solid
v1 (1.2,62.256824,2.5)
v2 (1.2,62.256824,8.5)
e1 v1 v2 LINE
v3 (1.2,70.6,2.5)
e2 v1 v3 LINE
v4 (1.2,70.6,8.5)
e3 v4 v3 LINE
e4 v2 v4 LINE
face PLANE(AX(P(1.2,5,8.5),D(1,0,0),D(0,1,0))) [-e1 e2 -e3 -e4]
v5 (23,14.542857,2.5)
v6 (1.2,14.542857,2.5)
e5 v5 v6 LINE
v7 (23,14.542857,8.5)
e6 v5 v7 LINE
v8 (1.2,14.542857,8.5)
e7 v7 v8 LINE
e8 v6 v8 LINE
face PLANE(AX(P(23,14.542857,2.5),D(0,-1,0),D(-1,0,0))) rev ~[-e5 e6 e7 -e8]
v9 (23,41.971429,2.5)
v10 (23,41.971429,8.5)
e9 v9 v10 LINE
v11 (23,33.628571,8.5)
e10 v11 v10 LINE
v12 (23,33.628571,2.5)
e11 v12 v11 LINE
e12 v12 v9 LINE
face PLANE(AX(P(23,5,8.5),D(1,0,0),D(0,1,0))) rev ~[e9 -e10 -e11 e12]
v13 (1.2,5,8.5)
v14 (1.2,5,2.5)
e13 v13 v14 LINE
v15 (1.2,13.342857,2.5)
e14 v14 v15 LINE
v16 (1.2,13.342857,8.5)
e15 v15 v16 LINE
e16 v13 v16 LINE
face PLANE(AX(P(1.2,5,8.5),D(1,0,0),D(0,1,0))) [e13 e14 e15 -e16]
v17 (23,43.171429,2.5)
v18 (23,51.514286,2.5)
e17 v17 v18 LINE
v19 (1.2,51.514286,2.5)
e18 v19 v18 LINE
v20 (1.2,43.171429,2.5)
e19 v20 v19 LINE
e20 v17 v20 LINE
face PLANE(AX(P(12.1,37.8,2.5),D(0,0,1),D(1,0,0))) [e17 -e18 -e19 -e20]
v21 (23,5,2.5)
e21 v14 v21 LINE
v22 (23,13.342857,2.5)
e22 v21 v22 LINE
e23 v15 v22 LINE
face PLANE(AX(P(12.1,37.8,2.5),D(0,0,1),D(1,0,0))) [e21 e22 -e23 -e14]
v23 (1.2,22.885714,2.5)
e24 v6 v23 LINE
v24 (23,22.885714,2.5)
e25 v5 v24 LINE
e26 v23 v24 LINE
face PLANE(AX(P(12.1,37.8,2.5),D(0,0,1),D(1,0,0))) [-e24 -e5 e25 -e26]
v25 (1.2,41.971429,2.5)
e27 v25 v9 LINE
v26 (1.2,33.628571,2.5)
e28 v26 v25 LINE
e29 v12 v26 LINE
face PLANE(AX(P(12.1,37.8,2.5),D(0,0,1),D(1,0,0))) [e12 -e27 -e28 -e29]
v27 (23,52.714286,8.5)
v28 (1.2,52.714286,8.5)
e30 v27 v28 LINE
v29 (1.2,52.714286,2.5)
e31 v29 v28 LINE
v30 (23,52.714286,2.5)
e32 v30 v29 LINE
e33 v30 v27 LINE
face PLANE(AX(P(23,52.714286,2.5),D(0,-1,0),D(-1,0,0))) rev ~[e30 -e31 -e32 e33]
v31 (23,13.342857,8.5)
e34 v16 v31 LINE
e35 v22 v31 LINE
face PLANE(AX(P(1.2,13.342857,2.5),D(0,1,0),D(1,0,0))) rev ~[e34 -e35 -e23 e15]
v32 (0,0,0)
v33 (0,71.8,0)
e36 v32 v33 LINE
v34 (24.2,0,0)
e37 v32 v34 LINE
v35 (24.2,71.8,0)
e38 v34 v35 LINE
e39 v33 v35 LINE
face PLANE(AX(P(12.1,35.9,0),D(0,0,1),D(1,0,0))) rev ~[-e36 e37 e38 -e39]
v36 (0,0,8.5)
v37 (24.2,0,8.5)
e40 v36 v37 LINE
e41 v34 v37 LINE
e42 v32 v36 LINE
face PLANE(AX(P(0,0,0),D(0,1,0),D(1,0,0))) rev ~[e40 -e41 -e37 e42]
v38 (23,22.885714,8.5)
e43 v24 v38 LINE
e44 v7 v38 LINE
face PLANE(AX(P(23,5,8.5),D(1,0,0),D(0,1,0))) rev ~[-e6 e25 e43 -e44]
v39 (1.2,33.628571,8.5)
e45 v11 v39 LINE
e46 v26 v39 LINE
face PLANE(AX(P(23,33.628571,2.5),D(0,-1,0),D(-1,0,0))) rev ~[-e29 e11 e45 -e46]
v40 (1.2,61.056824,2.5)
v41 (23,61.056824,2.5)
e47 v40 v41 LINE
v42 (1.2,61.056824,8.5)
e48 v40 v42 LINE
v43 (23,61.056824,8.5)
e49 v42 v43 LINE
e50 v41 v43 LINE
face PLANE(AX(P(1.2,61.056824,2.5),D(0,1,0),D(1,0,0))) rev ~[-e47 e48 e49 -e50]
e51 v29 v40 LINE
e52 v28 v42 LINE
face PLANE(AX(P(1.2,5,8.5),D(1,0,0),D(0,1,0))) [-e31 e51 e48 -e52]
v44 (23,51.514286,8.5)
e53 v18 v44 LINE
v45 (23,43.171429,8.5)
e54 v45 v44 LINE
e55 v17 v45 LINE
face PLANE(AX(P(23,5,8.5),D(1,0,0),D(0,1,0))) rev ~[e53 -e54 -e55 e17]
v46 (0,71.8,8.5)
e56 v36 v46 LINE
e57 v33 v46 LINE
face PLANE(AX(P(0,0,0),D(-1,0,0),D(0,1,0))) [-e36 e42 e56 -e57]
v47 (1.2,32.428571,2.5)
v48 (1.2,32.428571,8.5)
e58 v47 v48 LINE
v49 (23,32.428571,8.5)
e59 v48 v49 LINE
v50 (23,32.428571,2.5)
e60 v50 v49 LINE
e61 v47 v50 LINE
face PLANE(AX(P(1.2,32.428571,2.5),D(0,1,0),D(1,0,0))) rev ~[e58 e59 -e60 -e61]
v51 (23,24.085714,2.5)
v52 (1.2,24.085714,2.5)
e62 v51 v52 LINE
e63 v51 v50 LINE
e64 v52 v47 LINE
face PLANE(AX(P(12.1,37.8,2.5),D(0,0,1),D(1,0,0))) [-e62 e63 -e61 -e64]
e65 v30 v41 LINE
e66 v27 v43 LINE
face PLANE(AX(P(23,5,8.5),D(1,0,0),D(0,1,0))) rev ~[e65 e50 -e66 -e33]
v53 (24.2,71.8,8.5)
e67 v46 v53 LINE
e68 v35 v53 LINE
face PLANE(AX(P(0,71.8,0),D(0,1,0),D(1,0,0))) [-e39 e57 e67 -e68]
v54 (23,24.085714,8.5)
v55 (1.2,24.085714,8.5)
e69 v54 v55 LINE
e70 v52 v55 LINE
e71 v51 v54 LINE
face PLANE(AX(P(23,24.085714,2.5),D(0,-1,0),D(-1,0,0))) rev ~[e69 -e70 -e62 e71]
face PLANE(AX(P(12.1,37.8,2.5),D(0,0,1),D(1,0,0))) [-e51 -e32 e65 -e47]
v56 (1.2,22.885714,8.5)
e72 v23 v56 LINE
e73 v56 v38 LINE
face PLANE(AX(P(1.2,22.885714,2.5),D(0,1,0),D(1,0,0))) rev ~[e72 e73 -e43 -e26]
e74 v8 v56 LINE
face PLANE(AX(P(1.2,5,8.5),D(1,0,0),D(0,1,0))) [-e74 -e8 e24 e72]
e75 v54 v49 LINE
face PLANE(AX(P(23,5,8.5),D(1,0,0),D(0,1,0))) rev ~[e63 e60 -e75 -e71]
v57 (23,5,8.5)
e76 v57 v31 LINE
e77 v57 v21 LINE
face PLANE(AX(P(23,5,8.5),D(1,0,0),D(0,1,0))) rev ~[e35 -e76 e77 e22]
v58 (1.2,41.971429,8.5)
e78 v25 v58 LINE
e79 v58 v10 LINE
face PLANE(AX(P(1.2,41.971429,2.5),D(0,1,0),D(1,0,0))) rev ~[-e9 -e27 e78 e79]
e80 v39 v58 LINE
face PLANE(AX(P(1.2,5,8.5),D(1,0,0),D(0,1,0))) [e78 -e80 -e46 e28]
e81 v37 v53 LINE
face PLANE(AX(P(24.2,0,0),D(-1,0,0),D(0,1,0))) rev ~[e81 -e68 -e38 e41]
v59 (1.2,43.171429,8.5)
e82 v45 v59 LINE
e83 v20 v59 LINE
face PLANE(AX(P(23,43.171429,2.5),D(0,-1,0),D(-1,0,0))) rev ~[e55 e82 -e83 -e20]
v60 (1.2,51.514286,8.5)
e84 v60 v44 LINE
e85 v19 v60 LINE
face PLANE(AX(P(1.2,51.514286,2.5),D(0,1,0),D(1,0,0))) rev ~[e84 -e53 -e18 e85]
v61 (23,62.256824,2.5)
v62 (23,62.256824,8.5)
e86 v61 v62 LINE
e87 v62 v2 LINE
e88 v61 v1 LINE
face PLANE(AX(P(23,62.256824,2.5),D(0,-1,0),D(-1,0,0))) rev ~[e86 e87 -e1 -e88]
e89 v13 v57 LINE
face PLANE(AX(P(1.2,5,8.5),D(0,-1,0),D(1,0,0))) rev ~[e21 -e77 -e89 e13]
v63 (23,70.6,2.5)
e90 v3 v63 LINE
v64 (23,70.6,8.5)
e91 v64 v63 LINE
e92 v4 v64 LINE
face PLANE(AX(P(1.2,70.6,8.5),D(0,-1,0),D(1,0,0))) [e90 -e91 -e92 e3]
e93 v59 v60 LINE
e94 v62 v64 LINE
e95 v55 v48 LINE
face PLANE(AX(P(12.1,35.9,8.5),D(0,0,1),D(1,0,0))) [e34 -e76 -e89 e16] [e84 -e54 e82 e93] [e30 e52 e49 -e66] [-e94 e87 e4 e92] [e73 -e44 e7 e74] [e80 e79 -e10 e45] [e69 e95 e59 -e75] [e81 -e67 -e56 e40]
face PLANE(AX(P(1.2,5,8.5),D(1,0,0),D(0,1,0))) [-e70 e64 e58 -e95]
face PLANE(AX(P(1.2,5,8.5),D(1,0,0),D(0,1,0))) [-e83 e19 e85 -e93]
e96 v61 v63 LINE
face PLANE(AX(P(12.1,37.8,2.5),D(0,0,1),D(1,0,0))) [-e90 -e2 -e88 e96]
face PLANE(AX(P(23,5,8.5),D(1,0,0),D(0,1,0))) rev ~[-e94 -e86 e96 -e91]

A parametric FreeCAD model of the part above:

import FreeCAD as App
import Part
import Sketcher
Q = App.Units.Quantity


def add_polygon(sketch, points):
    """Adds a closed chain of lines whose ends are joined by coincident constraints."""
    first, n = sketch.GeometryCount, len(points)
    for a, b in zip(points, points[1:] + points[:1]):
        sketch.addGeometry(Part.LineSegment(App.Vector(*a, 0), App.Vector(*b, 0)), False)
    for i in range(n):
        sketch.addConstraint(Sketcher.Constraint("Coincident", first + i, 2, first + (i + 1) % n, 1))

doc = App.newDocument("Part")
params = doc.addObject("Spreadsheet::Sheet", "Params")
for row, (alias, value) in enumerate([
    ("sketch1_width", "24.2 mm"),
    ("sketch1_height", "71.8 mm"),
    ("pad1_length", "8.5 mm"),
    ("sketch2_width", "21.8 mm"),
    ("sketch2_height", "65.6 mm"),
    ("pocket1_length", "6 mm"),
    ("sketch3_width", "21.8 mm"),
    ("sketch3_height", "1.2 mm"),
    ("pad2_length", "6 mm"),
], start=1):
    params.set(f"A{row}", alias)
    params.set(f"B{row}", "=" + value)
    params.setAlias(f"B{row}", alias)

body = doc.addObject("PartDesign::Body", "Body")

# Sketch on XY plane
sketch1 = body.newObject("Sketcher::SketchObject", "Sketch")
sketch1.AttachmentSupport = (doc.getObject("XY_Plane"), [""])
sketch1.MapMode = "FlatFace"
add_polygon(sketch1, [(0, 72), (0, 0), (24, 0), (24, 72)])  # lines 0-3
sketch1.addConstraint([
    Sketcher.Constraint("Vertical", 0),
    Sketcher.Constraint("Horizontal", 1),
    Sketcher.Constraint("Vertical", 2),
    Sketcher.Constraint("Horizontal", 3),
    Sketcher.Constraint("Coincident", 0, 2, -1, 1),
    Sketcher.Constraint("DistanceX", 1, 1, 1, 2, Q("24.2 mm")),
    Sketcher.Constraint("DistanceY", 0, 2, 0, 1, Q("71.8 mm")),
])
sketch1.setExpression("Constraints[9]", "Params.sketch1_width")
sketch1.setExpression("Constraints[10]", "Params.sketch1_height")
pad1 = body.newObject("PartDesign::Pad", "Pad")
pad1.Profile = sketch1
pad1.setExpression("Length", "Params.pad1_length")

# Sketch on XY plane
sketch2 = body.newObject("Sketcher::SketchObject", "Sketch001")
sketch2.AttachmentSupport = (doc.getObject("XY_Plane"), [""])
sketch2.MapMode = "FlatFace"
sketch2.AttachmentOffset = App.Placement(App.Vector(0, 0, 8.5), App.Rotation())
add_polygon(sketch2, [(1, 71), (1, 5), (23, 5), (23, 71)])  # lines 0-3
sketch2.addConstraint([
    Sketcher.Constraint("Vertical", 0),
    Sketcher.Constraint("Horizontal", 1),
    Sketcher.Constraint("Vertical", 2),
    Sketcher.Constraint("Horizontal", 3),
    Sketcher.Constraint("DistanceX", 1, 1, 1, 2, Q("21.8 mm")),
    Sketcher.Constraint("DistanceY", 0, 2, 0, 1, Q("65.6 mm")),
    Sketcher.Constraint("DistanceY", -1, 1, 0, 2, Q("5 mm")),
    Sketcher.Constraint("DistanceX", -1, 1, 1, 2, Q("23 mm")),
])
sketch2.setExpression("Constraints[8]", "Params.sketch2_width")
sketch2.setExpression("Constraints[9]", "Params.sketch2_height")
pocket1 = body.newObject("PartDesign::Pocket", "Pocket")
pocket1.Profile = sketch2
pocket1.setExpression("Length", "Params.pocket1_length")

# Sketch on XY plane
sketch3 = body.newObject("Sketcher::SketchObject", "Sketch002")
sketch3.AttachmentSupport = (doc.getObject("XY_Plane"), [""])
sketch3.MapMode = "FlatFace"
sketch3.AttachmentOffset = App.Placement(App.Vector(0, 0, 2.5), App.Rotation())
add_polygon(sketch3, [(1.2, 62.3), (1.2, 61.1), (23, 61.1), (23, 62.3)])  # lines 0-3
add_polygon(sketch3, [(23, 51.5), (23, 52.7), (1.2, 52.7), (1.2, 51.5)])  # lines 4-7
add_polygon(sketch3, [(1.2, 43.2), (1.2, 42), (23, 42), (23, 43.2)])  # lines 8-11
add_polygon(sketch3, [(23, 32.4), (23, 33.6), (1.2, 33.6), (1.2, 32.4)])  # lines 12-15
add_polygon(sketch3, [(1.2, 24.1), (1.2, 22.9), (23, 22.9), (23, 24.1)])  # lines 16-19
add_polygon(sketch3, [(23, 13.3), (23, 14.5), (1.2, 14.5), (1.2, 13.3)])  # lines 20-23
sketch3.addConstraint([
    Sketcher.Constraint("Vertical", 0),
    Sketcher.Constraint("Horizontal", 1),
    Sketcher.Constraint("Vertical", 2),
    Sketcher.Constraint("Horizontal", 3),
    Sketcher.Constraint("Vertical", 4),
    Sketcher.Constraint("Horizontal", 5),
    Sketcher.Constraint("Vertical", 6),
    Sketcher.Constraint("Horizontal", 7),
    Sketcher.Constraint("Vertical", 8),
    Sketcher.Constraint("Horizontal", 9),
    Sketcher.Constraint("Vertical", 10),
    Sketcher.Constraint("Horizontal", 11),
    Sketcher.Constraint("Vertical", 12),
    Sketcher.Constraint("Horizontal", 13),
    Sketcher.Constraint("Vertical", 14),
    Sketcher.Constraint("Horizontal", 15),
    Sketcher.Constraint("Vertical", 16),
    Sketcher.Constraint("Horizontal", 17),
    Sketcher.Constraint("Vertical", 18),
    Sketcher.Constraint("Horizontal", 19),
    Sketcher.Constraint("Vertical", 20),
    Sketcher.Constraint("Horizontal", 21),
    Sketcher.Constraint("Vertical", 22),
    Sketcher.Constraint("Horizontal", 23),
    Sketcher.Constraint("Vertical", 2, 2, 4, 2),
    Sketcher.Constraint("Vertical", 3, 2, 5, 2),
    Sketcher.Constraint("Vertical", 6, 2, 8, 2),
    Sketcher.Constraint("Vertical", 7, 2, 9, 2),
    Sketcher.Constraint("Vertical", 10, 2, 12, 2),
    Sketcher.Constraint("Vertical", 11, 2, 13, 2),
    Sketcher.Constraint("Vertical", 14, 2, 16, 2),
    Sketcher.Constraint("Vertical", 15, 2, 17, 2),
    Sketcher.Constraint("Vertical", 18, 2, 20, 2),
    Sketcher.Constraint("Vertical", 19, 2, 21, 2),
    Sketcher.Constraint("Equal", 2, 4),
    Sketcher.Constraint("Equal", 6, 8),
    Sketcher.Constraint("Equal", 10, 12),
    Sketcher.Constraint("Equal", 14, 16),
    Sketcher.Constraint("Equal", 18, 20),
    Sketcher.Constraint("DistanceX", 1, 1, 1, 2, Q("21.8 mm")),
    Sketcher.Constraint("DistanceY", 0, 2, 0, 1, Q("1.2 mm")),
    Sketcher.Constraint("DistanceX", -1, 1, 1, 2, Q("23 mm")),
    Sketcher.Constraint("DistanceY", -1, 1, 8, 2, Q("41.971429 mm")),
    Sketcher.Constraint("DistanceY", -1, 1, 12, 2, Q("33.628571 mm")),
    Sketcher.Constraint("DistanceY", 6, 2, 3, 2, Q("10.742538 mm")),
    Sketcher.Constraint("DistanceY", -1, 1, 0, 2, Q("61.056824 mm")),
    Sketcher.Constraint("DistanceY", -1, 1, 16, 2, Q("22.885714 mm")),
    Sketcher.Constraint("DistanceY", -1, 1, 20, 2, Q("14.542857 mm")),
])
sketch3.setExpression("Constraints[63]", "Params.sketch3_width")
sketch3.setExpression("Constraints[64]", "Params.sketch3_height")
pad2 = body.newObject("PartDesign::Pad", "Pad001")
pad2.Profile = sketch3
pad2.setExpression("Length", "Params.pad2_length")
body2 = doc.addObject("PartDesign::Body", "Body001")
doc.recompute()

body2.BaseFeature = body
doc.recompute()
body.Visibility = False

doc.recompute()
